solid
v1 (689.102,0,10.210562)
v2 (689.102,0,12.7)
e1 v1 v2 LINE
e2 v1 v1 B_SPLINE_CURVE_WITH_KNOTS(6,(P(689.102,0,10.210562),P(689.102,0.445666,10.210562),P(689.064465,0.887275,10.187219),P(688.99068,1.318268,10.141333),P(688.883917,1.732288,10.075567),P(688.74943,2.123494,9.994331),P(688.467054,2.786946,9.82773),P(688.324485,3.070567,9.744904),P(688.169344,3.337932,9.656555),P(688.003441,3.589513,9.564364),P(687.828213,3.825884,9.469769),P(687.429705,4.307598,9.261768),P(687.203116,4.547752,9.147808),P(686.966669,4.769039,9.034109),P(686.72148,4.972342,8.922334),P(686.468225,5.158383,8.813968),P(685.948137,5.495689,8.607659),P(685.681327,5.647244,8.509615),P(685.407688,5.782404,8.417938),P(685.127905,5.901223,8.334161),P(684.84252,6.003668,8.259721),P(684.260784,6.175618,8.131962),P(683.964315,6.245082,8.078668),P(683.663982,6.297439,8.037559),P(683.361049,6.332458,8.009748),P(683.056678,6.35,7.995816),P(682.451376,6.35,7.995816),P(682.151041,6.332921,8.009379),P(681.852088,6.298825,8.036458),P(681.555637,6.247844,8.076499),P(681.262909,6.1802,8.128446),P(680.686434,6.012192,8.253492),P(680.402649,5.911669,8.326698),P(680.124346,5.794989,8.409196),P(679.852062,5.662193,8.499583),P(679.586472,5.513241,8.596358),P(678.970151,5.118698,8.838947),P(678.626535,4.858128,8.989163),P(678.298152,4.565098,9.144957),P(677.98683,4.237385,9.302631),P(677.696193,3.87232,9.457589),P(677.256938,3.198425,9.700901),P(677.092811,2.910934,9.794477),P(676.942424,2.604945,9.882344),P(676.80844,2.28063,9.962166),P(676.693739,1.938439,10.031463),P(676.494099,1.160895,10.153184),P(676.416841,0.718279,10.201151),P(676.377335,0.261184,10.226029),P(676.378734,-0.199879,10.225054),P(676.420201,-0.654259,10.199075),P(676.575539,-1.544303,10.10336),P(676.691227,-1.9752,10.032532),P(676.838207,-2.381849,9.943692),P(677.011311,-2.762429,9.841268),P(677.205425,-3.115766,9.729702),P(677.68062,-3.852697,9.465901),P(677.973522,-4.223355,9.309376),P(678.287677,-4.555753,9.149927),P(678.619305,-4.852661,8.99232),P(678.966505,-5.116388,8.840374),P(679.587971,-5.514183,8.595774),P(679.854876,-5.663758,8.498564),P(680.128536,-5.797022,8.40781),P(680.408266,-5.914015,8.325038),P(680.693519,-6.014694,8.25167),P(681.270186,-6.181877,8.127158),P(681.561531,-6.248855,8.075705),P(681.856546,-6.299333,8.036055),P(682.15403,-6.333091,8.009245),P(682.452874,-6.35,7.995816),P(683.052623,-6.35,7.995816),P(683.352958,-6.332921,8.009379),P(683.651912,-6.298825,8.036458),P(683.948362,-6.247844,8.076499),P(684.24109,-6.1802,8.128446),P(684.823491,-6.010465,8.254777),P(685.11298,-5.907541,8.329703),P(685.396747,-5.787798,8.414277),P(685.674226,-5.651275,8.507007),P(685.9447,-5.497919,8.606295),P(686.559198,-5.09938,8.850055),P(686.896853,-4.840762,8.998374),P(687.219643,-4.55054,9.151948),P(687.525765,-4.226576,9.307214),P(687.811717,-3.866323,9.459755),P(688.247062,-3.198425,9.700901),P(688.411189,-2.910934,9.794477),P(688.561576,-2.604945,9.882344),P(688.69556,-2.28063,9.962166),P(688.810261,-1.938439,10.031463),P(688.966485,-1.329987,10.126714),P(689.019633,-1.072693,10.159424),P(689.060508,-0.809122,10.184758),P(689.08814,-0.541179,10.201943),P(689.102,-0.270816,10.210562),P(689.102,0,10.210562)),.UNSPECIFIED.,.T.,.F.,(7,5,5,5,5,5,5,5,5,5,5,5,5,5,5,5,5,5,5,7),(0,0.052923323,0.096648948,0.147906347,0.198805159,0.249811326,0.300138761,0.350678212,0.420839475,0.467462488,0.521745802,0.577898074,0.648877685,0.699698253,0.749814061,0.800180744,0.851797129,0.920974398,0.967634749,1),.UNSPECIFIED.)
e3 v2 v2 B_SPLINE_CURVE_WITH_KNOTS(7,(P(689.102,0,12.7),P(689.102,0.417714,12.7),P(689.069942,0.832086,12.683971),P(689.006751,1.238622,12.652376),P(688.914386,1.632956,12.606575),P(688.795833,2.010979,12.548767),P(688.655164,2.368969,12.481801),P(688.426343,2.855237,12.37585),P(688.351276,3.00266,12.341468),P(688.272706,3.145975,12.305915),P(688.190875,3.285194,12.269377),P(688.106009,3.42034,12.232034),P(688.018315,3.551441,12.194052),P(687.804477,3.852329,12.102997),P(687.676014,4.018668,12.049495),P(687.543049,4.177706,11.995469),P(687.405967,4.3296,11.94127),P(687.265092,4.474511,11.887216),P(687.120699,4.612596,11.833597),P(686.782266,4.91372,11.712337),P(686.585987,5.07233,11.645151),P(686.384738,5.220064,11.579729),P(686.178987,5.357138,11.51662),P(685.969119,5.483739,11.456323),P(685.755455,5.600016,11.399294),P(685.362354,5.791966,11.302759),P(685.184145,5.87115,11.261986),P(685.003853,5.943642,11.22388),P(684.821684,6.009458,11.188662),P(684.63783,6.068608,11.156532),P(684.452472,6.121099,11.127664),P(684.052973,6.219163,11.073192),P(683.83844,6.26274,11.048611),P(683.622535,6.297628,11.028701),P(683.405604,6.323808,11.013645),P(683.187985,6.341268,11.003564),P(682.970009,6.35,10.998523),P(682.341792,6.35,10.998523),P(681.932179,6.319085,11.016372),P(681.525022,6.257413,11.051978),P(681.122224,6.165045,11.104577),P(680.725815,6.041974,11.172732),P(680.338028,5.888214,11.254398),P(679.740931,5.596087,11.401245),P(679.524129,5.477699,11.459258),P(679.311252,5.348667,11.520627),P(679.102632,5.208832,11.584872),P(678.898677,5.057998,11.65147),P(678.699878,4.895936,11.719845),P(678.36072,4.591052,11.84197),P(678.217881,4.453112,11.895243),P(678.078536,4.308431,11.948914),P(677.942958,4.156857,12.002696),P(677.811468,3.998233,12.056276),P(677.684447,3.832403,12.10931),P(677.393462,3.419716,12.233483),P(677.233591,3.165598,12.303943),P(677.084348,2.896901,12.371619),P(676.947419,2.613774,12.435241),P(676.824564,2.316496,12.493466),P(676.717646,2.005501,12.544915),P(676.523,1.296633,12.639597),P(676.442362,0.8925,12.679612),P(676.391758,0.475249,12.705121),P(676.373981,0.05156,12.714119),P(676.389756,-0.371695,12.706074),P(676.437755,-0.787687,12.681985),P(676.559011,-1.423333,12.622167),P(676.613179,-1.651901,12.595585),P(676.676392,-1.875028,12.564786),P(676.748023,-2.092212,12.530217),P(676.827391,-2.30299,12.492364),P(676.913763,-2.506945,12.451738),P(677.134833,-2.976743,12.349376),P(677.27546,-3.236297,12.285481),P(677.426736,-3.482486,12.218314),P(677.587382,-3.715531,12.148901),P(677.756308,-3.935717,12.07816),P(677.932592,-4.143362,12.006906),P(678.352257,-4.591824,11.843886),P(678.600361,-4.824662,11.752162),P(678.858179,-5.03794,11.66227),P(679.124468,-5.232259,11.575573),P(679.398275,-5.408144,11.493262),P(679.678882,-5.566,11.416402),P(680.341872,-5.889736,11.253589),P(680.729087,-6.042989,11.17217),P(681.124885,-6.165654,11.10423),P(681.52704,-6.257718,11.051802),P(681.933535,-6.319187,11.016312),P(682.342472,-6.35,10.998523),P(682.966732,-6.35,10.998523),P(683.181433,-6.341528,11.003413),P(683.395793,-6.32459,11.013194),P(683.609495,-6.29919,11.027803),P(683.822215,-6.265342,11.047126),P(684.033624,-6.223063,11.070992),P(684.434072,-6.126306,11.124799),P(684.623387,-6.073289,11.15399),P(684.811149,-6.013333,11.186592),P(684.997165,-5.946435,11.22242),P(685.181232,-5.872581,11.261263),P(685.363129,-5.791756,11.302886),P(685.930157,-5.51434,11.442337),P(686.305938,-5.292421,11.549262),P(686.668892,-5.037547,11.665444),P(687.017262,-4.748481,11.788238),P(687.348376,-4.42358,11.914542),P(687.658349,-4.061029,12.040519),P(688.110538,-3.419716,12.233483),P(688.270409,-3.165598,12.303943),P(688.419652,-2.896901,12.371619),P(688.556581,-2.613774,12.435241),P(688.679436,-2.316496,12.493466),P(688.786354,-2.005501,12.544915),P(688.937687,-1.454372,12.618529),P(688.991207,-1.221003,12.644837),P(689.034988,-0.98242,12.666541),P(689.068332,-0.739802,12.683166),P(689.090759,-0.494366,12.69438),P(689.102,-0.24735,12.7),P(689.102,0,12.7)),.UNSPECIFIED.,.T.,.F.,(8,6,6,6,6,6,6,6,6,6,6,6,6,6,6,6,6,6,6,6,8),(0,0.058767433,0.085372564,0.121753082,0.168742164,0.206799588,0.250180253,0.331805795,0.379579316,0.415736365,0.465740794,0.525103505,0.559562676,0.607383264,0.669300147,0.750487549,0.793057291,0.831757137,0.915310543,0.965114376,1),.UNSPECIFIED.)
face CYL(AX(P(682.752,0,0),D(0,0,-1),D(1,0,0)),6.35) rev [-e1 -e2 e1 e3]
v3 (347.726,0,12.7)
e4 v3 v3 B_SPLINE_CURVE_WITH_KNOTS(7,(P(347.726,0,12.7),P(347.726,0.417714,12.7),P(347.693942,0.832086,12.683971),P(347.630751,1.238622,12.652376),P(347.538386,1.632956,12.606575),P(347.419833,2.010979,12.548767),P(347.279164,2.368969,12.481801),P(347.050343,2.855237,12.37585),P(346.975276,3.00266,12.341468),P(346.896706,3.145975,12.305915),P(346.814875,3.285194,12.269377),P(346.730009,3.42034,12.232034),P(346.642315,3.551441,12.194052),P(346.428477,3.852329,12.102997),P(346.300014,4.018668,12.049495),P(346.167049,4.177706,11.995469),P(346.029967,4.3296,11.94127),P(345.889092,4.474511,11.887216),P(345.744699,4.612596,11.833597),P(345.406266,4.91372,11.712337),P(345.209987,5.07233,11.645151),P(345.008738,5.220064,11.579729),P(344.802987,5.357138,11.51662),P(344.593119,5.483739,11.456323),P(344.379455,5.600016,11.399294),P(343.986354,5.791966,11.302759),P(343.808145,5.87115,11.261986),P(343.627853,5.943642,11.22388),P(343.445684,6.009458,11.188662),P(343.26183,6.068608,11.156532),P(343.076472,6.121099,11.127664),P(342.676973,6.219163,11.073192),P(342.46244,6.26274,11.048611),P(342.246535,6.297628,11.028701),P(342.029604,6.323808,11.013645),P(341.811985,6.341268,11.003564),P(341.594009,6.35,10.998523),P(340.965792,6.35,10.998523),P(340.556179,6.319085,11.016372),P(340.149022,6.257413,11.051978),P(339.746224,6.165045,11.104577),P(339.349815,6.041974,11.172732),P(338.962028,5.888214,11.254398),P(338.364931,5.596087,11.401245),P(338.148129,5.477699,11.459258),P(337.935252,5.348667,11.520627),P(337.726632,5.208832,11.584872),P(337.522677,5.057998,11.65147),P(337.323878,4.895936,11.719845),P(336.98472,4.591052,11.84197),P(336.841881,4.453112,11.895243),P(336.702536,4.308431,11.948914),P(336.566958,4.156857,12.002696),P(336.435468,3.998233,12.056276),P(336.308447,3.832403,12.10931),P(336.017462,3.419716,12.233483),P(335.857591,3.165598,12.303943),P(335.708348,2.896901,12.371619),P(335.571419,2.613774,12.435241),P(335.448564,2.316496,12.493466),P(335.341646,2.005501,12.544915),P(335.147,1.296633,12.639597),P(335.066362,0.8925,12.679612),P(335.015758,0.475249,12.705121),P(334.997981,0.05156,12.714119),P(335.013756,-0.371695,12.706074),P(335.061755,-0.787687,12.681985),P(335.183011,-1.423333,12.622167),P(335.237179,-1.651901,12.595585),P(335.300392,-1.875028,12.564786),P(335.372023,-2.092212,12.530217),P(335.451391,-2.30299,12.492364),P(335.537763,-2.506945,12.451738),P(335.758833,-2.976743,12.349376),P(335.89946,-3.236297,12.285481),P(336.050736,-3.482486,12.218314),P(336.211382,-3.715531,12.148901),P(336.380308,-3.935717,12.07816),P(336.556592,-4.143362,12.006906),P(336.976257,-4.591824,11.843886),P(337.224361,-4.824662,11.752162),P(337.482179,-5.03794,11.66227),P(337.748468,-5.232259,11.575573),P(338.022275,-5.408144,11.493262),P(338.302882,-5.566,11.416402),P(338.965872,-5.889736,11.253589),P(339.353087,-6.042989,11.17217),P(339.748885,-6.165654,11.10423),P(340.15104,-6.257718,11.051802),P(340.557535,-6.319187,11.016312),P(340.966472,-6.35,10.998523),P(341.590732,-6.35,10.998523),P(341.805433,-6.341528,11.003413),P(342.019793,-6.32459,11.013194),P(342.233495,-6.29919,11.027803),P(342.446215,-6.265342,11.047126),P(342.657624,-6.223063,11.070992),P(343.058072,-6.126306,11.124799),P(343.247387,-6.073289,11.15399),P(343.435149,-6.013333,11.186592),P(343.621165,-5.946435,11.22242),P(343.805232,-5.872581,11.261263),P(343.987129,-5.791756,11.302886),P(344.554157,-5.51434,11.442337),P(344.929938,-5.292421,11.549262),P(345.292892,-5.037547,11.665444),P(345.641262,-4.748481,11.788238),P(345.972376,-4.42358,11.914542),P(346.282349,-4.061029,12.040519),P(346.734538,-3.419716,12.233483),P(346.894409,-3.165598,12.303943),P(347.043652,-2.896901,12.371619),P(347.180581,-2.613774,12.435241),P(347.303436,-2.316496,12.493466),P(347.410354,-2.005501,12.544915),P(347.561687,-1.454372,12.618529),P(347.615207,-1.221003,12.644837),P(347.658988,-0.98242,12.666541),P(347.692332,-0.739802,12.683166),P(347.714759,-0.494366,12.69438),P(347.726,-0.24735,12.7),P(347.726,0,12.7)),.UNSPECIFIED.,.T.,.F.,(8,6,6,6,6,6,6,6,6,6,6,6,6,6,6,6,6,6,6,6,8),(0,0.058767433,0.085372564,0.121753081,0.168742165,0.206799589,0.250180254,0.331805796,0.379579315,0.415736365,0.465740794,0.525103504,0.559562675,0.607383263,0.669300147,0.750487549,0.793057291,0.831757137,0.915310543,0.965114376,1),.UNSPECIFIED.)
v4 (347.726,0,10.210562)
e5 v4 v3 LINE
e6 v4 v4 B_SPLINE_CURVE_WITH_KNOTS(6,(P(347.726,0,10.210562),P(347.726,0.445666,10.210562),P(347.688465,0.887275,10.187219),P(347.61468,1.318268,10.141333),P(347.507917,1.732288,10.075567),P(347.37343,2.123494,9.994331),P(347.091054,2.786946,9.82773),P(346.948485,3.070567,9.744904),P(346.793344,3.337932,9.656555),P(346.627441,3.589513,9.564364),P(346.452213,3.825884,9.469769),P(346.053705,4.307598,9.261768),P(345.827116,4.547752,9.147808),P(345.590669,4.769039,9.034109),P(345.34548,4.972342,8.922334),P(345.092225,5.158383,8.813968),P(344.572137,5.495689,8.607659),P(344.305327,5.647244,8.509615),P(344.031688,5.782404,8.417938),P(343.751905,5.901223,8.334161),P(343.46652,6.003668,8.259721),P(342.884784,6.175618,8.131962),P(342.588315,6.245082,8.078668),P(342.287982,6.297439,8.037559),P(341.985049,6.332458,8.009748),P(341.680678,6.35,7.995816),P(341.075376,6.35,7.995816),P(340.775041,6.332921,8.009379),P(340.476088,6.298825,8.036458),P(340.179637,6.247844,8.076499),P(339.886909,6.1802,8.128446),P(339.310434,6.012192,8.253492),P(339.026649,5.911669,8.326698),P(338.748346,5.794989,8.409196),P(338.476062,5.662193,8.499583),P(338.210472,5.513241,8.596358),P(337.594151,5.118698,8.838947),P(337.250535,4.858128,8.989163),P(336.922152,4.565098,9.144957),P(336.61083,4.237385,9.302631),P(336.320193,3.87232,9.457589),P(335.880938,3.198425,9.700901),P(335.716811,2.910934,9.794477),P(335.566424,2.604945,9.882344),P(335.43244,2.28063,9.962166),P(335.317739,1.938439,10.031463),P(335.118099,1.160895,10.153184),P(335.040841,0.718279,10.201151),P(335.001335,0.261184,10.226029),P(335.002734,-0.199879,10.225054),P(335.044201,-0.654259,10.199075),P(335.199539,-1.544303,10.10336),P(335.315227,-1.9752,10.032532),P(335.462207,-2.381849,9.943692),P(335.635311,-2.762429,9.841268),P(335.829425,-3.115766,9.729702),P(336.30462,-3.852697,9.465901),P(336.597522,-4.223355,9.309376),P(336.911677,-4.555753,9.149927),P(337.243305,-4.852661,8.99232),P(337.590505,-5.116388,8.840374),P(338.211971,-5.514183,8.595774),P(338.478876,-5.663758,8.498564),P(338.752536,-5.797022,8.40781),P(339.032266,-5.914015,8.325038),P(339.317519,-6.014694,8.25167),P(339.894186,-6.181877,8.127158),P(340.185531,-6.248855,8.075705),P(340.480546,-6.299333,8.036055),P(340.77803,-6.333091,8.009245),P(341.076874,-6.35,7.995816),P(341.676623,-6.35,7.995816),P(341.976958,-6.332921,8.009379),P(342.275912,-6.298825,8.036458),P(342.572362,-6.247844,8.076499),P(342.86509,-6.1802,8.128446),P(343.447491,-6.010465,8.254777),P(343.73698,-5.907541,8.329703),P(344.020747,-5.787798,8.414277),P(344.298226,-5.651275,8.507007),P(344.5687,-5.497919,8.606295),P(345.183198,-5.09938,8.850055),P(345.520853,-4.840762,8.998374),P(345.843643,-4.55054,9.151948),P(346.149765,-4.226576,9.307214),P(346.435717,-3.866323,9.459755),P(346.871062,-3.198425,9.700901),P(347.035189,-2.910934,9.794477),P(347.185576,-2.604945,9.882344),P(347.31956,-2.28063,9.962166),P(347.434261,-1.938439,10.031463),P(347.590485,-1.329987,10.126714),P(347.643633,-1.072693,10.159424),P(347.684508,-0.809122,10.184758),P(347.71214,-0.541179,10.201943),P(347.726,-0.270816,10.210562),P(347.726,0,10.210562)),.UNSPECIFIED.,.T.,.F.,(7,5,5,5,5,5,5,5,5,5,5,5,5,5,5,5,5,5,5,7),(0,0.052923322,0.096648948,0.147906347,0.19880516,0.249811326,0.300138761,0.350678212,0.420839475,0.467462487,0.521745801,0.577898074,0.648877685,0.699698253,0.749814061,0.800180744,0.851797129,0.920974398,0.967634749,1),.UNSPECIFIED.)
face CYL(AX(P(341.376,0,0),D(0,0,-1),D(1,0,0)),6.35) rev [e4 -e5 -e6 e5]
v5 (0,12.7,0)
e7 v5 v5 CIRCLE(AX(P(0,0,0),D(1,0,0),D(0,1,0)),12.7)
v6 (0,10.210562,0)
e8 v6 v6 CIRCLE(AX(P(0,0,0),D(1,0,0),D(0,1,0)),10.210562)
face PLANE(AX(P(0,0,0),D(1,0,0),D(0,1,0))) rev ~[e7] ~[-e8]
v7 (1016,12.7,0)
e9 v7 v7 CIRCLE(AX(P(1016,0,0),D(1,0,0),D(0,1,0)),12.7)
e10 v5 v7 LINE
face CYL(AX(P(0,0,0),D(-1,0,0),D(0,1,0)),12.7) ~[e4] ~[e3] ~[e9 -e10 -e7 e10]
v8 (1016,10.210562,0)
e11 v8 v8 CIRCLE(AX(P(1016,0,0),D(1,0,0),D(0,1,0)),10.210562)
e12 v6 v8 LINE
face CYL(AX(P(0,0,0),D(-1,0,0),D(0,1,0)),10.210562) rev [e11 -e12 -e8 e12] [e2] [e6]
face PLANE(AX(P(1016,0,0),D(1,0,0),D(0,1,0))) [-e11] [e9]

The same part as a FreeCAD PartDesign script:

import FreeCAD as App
import Part
import Sketcher
Q = App.Units.Quantity

doc = App.newDocument("Part")
body = doc.addObject("PartDesign::Body", "Body")

# Sketch on YZ plane
sketch1 = doc.addObject("Sketcher::SketchObject", "Sketch")
body.addObject(sketch1)
sketch1.AttachmentSupport = (doc.YZ_Plane, [""])
sketch1.MapMode = "FlatFace"
sketch1.addGeometry(Part.Circle(App.Vector(0, 0, 0), App.Vector(0, 0, 1), 12.7), False)
sketch1.addGeometry(Part.Circle(App.Vector(0, 0, 0), App.Vector(0, 0, 1), 10.210562), False)
sketch1.addConstraint(Sketcher.Constraint("Coincident", 0, 3, -1, 1))
sketch1.addConstraint(Sketcher.Constraint("Coincident", 1, 3, -1, 1))
sketch1.addConstraint(Sketcher.Constraint("Diameter", 0, Q("1 in")))
sketch1.addConstraint(Sketcher.Constraint("Diameter", 1, 20.421124))
pad1 = doc.addObject("PartDesign::Pad", "Pad")
body.addObject(pad1)
pad1.Profile = sketch1
pad1.Length = Q("40 in")

# Sketch on XY plane
sketch2 = doc.addObject("Sketcher::SketchObject", "Sketch001")
body.addObject(sketch2)
sketch2.AttachmentSupport = (doc.XY_Plane, [""])
sketch2.MapMode = "FlatFace"
sketch2.addGeometry(Part.Circle(App.Vector(341.376, 0, 0), App.Vector(0, 0, 1), 6.35), False)
sketch2.addGeometry(Part.Circle(App.Vector(682.752, 0, 0), App.Vector(0, 0, 1), 6.35), False)
sketch2.addGeometry(Part.Circle(App.Vector(1024.128, 0, 0), App.Vector(0, 0, 1), 6.35), False)
sketch2.addGeometry(Part.Circle(App.Vector(1365.504, 0, 0), App.Vector(0, 0, 1), 6.35), False)
sketch2.addConstraint(Sketcher.Constraint("Equal", 0, 1))
sketch2.addConstraint(Sketcher.Constraint("Equal", 1, 2))
sketch2.addConstraint(Sketcher.Constraint("Equal", 2, 3))
sketch2.addConstraint(Sketcher.Constraint("PointOnObject", 0, 3, -1))
sketch2.addConstraint(Sketcher.Constraint("PointOnObject", 1, 3, -1))
sketch2.addConstraint(Sketcher.Constraint("PointOnObject", 2, 3, -1))
sketch2.addConstraint(Sketcher.Constraint("PointOnObject", 3, 3, -1))
sketch2.addConstraint(Sketcher.Constraint("Diameter", 0, Q("0.5 in")))
sketch2.addConstraint(Sketcher.Constraint("DistanceX", -1, 1, 0, 3, Q("13.44 in")))
sketch2.addConstraint(Sketcher.Constraint("DistanceX", -1, 1, 1, 3, Q("26.88 in")))
sketch2.addConstraint(Sketcher.Constraint("DistanceX", -1, 1, 2, 3, Q("40.32 in")))
sketch2.addConstraint(Sketcher.Constraint("DistanceX", -1, 1, 3, 3, Q("53.76 in")))
pocket1 = doc.addObject("PartDesign::Pocket", "Pocket")
body.addObject(pocket1)
pocket1.Profile = sketch2
pocket1.Length = Q("1 in")
pocket1.Reversed = True

doc.recompute()
